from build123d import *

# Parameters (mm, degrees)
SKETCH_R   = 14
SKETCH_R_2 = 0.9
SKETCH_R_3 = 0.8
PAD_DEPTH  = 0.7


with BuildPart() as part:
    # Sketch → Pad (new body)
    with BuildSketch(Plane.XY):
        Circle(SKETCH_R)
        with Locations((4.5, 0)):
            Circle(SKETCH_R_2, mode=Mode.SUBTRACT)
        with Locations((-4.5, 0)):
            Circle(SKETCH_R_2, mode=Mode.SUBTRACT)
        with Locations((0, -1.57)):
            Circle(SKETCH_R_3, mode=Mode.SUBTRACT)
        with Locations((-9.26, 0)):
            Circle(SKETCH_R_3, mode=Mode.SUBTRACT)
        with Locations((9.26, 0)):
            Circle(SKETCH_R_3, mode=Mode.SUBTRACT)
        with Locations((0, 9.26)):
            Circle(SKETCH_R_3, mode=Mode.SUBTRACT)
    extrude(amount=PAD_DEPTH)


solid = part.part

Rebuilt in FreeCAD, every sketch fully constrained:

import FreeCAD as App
import Part
import Sketcher
Q = App.Units.Quantity

doc = App.newDocument("Part")
body = doc.addObject("PartDesign::Body", "Body")

sketch1 = body.newObject("Sketcher::SketchObject", "Sketch")
sketch1.AttachmentSupport = (doc.getObject("XY_Plane"), [""])
sketch1.MapMode = "FlatFace"
sketch1.addGeometry([
    Part.Circle(App.Vector(0, 0, 0), App.Vector(0, 0, 1), 14),
    Part.Circle(App.Vector(-9.3, 0, 0), App.Vector(0, 0, 1), 0.8),
    Part.Circle(App.Vector(-4.5, 0, 0), App.Vector(0, 0, 1), 0.9),
    Part.Circle(App.Vector(0, -1.6, 0), App.Vector(0, 0, 1), 0.8),
    Part.Circle(App.Vector(4.5, 0, 0), App.Vector(0, 0, 1), 0.9),
    Part.Circle(App.Vector(9.3, 0, 0), App.Vector(0, 0, 1), 0.8),
    Part.Circle(App.Vector(0, 9.3, 0), App.Vector(0, 0, 1), 0.8),
], False)
sketch1.addConstraint([
    Sketcher.Constraint("Coincident", 0, 3, -1, 1),
    Sketcher.Constraint("Equal", 1, 3),
    Sketcher.Constraint("Equal", 2, 4),
    Sketcher.Constraint("Equal", 3, 5),
    Sketcher.Constraint("Equal", 5, 6),
    Sketcher.Constraint("Symmetric", 2, 3, 4, 3, -1, 1),
    Sketcher.Constraint("Symmetric", 1, 3, 5, 3, -1, 1),
    Sketcher.Constraint("PointOnObject", 1, 3, -1),
    Sketcher.Constraint("PointOnObject", 2, 3, -1),
    Sketcher.Constraint("PointOnObject", 3, 3, -2),
    Sketcher.Constraint("PointOnObject", 6, 3, -2),
    Sketcher.Constraint("Diameter", 0, Q("28 mm")),
    Sketcher.Constraint("Diameter", 1, Q("1.6 mm")),
    Sketcher.Constraint("Diameter", 2, Q("1.8 mm")),
    Sketcher.Constraint("DistanceX", 2, 3, 4, 3, Q("9 mm")),
    Sketcher.Constraint("DistanceX", 1, 3, -1, 1, Q("9.26 mm")),
    Sketcher.Constraint("DistanceY", 3, 3, -1, 1, Q("1.57 mm")),
    Sketcher.Constraint("DistanceY", -1, 1, 6, 3, Q("9.26 mm")),
])
pad1 = body.newObject("PartDesign::Pad", "Pad")
pad1.Profile = sketch1
pad1.Length = 0.7

doc.recompute()
